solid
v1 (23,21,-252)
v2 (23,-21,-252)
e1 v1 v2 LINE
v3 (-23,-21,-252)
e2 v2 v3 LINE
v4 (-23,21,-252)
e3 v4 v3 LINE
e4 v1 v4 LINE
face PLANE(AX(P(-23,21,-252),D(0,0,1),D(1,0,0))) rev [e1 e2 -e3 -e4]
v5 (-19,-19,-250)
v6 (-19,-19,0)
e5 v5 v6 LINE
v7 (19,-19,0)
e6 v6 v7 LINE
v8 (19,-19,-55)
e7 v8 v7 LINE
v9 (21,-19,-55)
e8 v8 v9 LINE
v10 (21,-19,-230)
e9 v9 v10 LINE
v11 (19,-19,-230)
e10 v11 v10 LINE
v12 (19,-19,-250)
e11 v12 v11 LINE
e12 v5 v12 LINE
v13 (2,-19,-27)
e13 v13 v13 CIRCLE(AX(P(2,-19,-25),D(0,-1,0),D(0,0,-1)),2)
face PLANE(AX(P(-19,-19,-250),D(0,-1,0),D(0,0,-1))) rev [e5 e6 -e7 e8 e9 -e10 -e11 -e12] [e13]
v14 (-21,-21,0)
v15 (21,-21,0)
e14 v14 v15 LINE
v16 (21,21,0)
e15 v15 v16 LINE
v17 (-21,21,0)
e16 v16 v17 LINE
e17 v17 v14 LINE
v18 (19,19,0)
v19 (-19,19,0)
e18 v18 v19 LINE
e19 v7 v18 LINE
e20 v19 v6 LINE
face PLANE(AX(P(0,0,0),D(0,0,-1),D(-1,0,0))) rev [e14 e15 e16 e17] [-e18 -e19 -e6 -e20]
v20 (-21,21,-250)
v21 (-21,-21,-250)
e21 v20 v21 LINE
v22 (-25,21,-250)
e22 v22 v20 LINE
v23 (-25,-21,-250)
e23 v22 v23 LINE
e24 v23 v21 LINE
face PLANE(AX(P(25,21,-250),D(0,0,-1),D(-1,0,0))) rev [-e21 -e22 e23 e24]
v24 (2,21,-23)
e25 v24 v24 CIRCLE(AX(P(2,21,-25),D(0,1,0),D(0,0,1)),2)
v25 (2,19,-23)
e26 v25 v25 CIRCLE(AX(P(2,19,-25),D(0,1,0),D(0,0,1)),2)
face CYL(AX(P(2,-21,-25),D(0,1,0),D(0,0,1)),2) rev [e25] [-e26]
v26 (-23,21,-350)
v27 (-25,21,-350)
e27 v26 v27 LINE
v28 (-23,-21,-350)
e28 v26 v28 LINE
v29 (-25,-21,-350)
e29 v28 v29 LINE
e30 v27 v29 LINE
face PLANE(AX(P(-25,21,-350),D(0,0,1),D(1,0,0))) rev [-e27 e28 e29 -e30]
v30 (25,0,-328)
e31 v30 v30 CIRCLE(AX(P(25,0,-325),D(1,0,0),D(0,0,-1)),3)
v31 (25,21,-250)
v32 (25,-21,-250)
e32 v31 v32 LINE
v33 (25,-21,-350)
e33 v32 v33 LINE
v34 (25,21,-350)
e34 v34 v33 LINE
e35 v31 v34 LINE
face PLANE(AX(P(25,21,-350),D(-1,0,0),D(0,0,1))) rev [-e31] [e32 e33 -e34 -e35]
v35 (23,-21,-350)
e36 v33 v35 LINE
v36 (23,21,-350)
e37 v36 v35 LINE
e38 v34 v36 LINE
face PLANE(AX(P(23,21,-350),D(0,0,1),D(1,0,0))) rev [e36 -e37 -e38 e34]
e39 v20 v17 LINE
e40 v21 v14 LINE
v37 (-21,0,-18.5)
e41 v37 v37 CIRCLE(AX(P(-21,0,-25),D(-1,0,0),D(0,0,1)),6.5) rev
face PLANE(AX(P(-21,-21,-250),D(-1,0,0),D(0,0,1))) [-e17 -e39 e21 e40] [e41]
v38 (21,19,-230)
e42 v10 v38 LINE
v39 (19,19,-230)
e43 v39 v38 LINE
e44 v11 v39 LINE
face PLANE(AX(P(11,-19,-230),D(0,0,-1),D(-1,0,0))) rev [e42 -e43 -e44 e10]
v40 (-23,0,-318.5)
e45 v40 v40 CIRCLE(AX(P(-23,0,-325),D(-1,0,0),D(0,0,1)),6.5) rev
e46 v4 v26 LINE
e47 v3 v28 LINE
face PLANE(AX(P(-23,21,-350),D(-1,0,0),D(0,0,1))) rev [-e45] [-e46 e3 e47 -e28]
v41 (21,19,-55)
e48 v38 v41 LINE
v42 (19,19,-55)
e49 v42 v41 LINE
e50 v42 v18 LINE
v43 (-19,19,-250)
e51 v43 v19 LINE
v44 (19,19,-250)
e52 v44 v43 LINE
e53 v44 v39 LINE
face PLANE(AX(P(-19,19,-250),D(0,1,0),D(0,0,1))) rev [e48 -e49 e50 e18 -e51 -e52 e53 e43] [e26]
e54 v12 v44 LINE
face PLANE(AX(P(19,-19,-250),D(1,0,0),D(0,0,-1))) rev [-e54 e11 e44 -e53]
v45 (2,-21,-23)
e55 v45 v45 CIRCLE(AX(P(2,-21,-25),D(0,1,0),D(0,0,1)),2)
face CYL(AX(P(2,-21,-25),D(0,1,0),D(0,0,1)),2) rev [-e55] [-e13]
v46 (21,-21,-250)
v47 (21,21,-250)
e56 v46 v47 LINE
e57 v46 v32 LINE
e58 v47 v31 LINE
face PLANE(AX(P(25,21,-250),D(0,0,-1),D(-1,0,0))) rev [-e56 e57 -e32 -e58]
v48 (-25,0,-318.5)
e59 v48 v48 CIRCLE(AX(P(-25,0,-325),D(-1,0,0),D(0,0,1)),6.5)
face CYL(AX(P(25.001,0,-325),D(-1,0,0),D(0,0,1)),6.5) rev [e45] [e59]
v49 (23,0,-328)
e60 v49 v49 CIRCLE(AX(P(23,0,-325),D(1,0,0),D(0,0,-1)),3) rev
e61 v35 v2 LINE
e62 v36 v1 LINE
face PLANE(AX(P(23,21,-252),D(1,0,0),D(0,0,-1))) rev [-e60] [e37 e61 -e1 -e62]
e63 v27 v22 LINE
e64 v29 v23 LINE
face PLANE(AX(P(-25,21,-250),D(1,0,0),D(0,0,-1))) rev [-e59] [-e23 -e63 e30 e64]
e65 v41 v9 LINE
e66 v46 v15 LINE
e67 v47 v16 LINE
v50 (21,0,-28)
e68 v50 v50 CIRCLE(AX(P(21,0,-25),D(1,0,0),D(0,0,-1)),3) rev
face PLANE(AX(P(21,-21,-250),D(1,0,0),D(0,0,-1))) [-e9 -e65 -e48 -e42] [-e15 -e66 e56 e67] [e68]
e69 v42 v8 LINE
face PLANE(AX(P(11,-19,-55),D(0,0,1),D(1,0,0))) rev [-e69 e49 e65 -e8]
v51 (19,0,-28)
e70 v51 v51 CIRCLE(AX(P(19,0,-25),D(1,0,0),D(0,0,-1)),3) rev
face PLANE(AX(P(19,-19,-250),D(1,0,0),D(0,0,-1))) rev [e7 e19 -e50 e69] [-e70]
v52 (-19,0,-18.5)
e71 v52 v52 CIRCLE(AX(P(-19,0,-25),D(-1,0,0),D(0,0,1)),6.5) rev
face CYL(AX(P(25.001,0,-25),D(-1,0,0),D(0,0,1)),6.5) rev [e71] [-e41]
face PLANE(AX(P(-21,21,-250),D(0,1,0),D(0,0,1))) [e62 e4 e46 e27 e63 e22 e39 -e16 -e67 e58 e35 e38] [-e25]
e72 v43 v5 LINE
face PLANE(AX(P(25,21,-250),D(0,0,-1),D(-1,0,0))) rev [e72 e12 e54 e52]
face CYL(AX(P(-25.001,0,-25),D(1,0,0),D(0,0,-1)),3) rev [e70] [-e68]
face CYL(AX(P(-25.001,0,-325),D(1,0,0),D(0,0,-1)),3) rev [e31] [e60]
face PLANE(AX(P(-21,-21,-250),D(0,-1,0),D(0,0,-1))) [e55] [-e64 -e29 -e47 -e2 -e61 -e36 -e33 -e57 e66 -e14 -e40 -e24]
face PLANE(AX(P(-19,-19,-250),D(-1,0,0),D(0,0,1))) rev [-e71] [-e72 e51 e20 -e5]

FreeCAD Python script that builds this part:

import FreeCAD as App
import Part
import Sketcher

doc = App.newDocument("Part")
body = doc.addObject("PartDesign::Body", "Body")

# Sketch on XY plane
sketch1 = body.newObject("Sketcher::SketchObject", "Sketch")
sketch1.AttachmentSupport = (doc.getObject("XY_Plane"), [""])
sketch1.MapMode = "FlatFace"
sketch1.addGeometry(Part.LineSegment(App.Vector(-21, 21, 0), App.Vector(-21, -21, 0)), False)
sketch1.addGeometry(Part.LineSegment(App.Vector(-21, -21, 0), App.Vector(21, -21, 0)), False)
sketch1.addGeometry(Part.LineSegment(App.Vector(21, -21, 0), App.Vector(21, 21, 0)), False)
sketch1.addGeometry(Part.LineSegment(App.Vector(21, 21, 0), App.Vector(-21, 21, 0)), False)
sketch1.addGeometry(Part.LineSegment(App.Vector(19, -19, 0), App.Vector(-19, -19, 0)), False)
sketch1.addGeometry(Part.LineSegment(App.Vector(-19, -19, 0), App.Vector(-19, 19, 0)), False)
sketch1.addGeometry(Part.LineSegment(App.Vector(-19, 19, 0), App.Vector(19, 19, 0)), False)
sketch1.addGeometry(Part.LineSegment(App.Vector(19, 19, 0), App.Vector(19, -19, 0)), False)
sketch1.addConstraint(Sketcher.Constraint("Coincident", 0, 2, 1, 1))
sketch1.addConstraint(Sketcher.Constraint("Coincident", 1, 2, 2, 1))
sketch1.addConstraint(Sketcher.Constraint("Coincident", 2, 2, 3, 1))
sketch1.addConstraint(Sketcher.Constraint("Coincident", 3, 2, 0, 1))
sketch1.addConstraint(Sketcher.Constraint("Coincident", 4, 2, 5, 1))
sketch1.addConstraint(Sketcher.Constraint("Coincident", 5, 2, 6, 1))
sketch1.addConstraint(Sketcher.Constraint("Coincident", 6, 2, 7, 1))
sketch1.addConstraint(Sketcher.Constraint("Coincident", 7, 2, 4, 1))
sketch1.addConstraint(Sketcher.Constraint("Vertical", 0))
sketch1.addConstraint(Sketcher.Constraint("Horizontal", 1))
sketch1.addConstraint(Sketcher.Constraint("Vertical", 2))
sketch1.addConstraint(Sketcher.Constraint("Horizontal", 3))
sketch1.addConstraint(Sketcher.Constraint("Horizontal", 4))
sketch1.addConstraint(Sketcher.Constraint("Vertical", 5))
sketch1.addConstraint(Sketcher.Constraint("Horizontal", 6))
sketch1.addConstraint(Sketcher.Constraint("Vertical", 7))
sketch1.addConstraint(Sketcher.Constraint("Symmetric", 0, 2, 2, 2, -1, 1))
sketch1.addConstraint(Sketcher.Constraint("Symmetric", 4, 2, 6, 2, -1, 1))
sketch1.addConstraint(Sketcher.Constraint("Equal", 3, 0))
sketch1.addConstraint(Sketcher.Constraint("Equal", 6, 5))
sketch1.addConstraint(Sketcher.Constraint("DistanceX", 1, 1, 1, 2, 42.0))
sketch1.addConstraint(Sketcher.Constraint("DistanceX", 4, 2, 4, 1, 38.0))
pad1 = body.newObject("PartDesign::Pad", "Pad")
pad1.Profile = sketch1
pad1.Length = 250
pad1.Reversed = True

# Sketch on XZ plane
sketch2 = body.newObject("Sketcher::SketchObject", "Sketch001")
sketch2.AttachmentSupport = (doc.getObject("XZ_Plane"), [""])
sketch2.MapMode = "FlatFace"
sketch2.addGeometry(Part.LineSegment(App.Vector(-25, -350, 0), App.Vector(-25, -250, 0)), False)
sketch2.addGeometry(Part.LineSegment(App.Vector(-25, -250, 0), App.Vector(25, -250, 0)), False)
sketch2.addGeometry(Part.LineSegment(App.Vector(25, -250, 0), App.Vector(25, -350, 0)), False)
sketch2.addGeometry(Part.LineSegment(App.Vector(25, -350, 0), App.Vector(23, -350, 0)), False)
sketch2.addGeometry(Part.LineSegment(App.Vector(23, -350, 0), App.Vector(23, -252, 0)), False)
sketch2.addGeometry(Part.LineSegment(App.Vector(23, -252, 0), App.Vector(-23, -252, 0)), False)
sketch2.addGeometry(Part.LineSegment(App.Vector(-23, -252, 0), App.Vector(-23, -350, 0)), False)
sketch2.addGeometry(Part.LineSegment(App.Vector(-23, -350, 0), App.Vector(-25, -350, 0)), False)
sketch2.addConstraint(Sketcher.Constraint("Coincident", 0, 2, 1, 1))
sketch2.addConstraint(Sketcher.Constraint("Coincident", 1, 2, 2, 1))
sketch2.addConstraint(Sketcher.Constraint("Coincident", 2, 2, 3, 1))
sketch2.addConstraint(Sketcher.Constraint("Coincident", 3, 2, 4, 1))
sketch2.addConstraint(Sketcher.Constraint("Coincident", 4, 2, 5, 1))
sketch2.addConstraint(Sketcher.Constraint("Coincident", 5, 2, 6, 1))
sketch2.addConstraint(Sketcher.Constraint("Coincident", 6, 2, 7, 1))
sketch2.addConstraint(Sketcher.Constraint("Coincident", 7, 2, 0, 1))
sketch2.addConstraint(Sketcher.Constraint("Vertical", 0))
sketch2.addConstraint(Sketcher.Constraint("Horizontal", 1))
sketch2.addConstraint(Sketcher.Constraint("Vertical", 2))
sketch2.addConstraint(Sketcher.Constraint("Horizontal", 3))
sketch2.addConstraint(Sketcher.Constraint("Vertical", 4))
sketch2.addConstraint(Sketcher.Constraint("Horizontal", 5))
sketch2.addConstraint(Sketcher.Constraint("Vertical", 6))
sketch2.addConstraint(Sketcher.Constraint("Horizontal", 7))
sketch2.addConstraint(Sketcher.Constraint("Symmetric", 3, 2, 6, 2, -2))
sketch2.addConstraint(Sketcher.Constraint("Equal", 3, 7))
sketch2.addConstraint(Sketcher.Constraint("DistanceX", 1, 1, 1, 2, 50.0))
sketch2.addConstraint(Sketcher.Constraint("DistanceX", 3, 2, 3, 1, 2.0))
sketch2.addConstraint(Sketcher.Constraint("DistanceY", 0, 1, 0, 2, 100.0))
sketch2.addConstraint(Sketcher.Constraint("DistanceY", 4, 1, 4, 2, 98.0))
sketch2.addConstraint(Sketcher.Constraint("DistanceY", 0, 2, -1, 1, 250.0))
pad2 = body.newObject("PartDesign::Pad", "Pad001")
pad2.Profile = sketch2
pad2.Length = 42
pad2.Midplane = True

# Sketch on YZ plane
sketch3 = body.newObject("Sketcher::SketchObject", "Sketch002")
sketch3.AttachmentSupport = (doc.getObject("YZ_Plane"), [""])
sketch3.MapMode = "FlatFace"
sketch3.AttachmentOffset = App.Placement(App.Vector(0, 0, -25), App.Rotation())
sketch3.addGeometry(Part.Circle(App.Vector(0, -25, 0), App.Vector(0, 0, 1), 6), False)
sketch3.addConstraint(Sketcher.Constraint("PointOnObject", 0, 3, -2))
sketch3.addConstraint(Sketcher.Constraint("Diameter", 0, 13.0))
sketch3.addConstraint(Sketcher.Constraint("DistanceY", 0, 3, -1, 1, 25.0))
pocket1 = body.newObject("PartDesign::Pocket", "Pocket")
pocket1.Profile = sketch3
pocket1.Length = 6
pocket1.Reversed = True

# Sketch on YZ plane
sketch4 = body.newObject("Sketcher::SketchObject", "Sketch003")
sketch4.AttachmentSupport = (doc.getObject("YZ_Plane"), [""])
sketch4.MapMode = "FlatFace"
sketch4.AttachmentOffset = App.Placement(App.Vector(0, 0, -25), App.Rotation())
sketch4.addGeometry(Part.Circle(App.Vector(0, -325, 0), App.Vector(0, 0, 1), 6), False)
sketch4.addConstraint(Sketcher.Constraint("PointOnObject", 0, 3, -2))
sketch4.addConstraint(Sketcher.Constraint("Diameter", 0, 13.0))
sketch4.addConstraint(Sketcher.Constraint("DistanceY", 0, 3, -1, 1, 325.0))
pocket2 = body.newObject("PartDesign::Pocket", "Pocket001")
pocket2.Profile = sketch4
pocket2.Type = "UpToFirst"
pocket2.Reversed = True

# Sketch on YZ plane
sketch5 = body.newObject("Sketcher::SketchObject", "Sketch004")
sketch5.AttachmentSupport = (doc.getObject("YZ_Plane"), [""])
sketch5.MapMode = "FlatFace"
sketch5.AttachmentOffset = App.Placement(App.Vector(0, 0, 25), App.Rotation())
sketch5.addGeometry(Part.Circle(App.Vector(0, -325, 0), App.Vector(0, 0, 1), 3), False)
sketch5.addConstraint(Sketcher.Constraint("PointOnObject", 0, 3, -2))
sketch5.addConstraint(Sketcher.Constraint("Diameter", 0, 6.0))
sketch5.addConstraint(Sketcher.Constraint("DistanceY", 0, 3, -1, 1, 325.0))
pocket3 = body.newObject("PartDesign::Pocket", "Pocket002")
pocket3.Profile = sketch5
pocket3.Type = "UpToFirst"

# Sketch on YZ plane
sketch6 = body.newObject("Sketcher::SketchObject", "Sketch005")
sketch6.AttachmentSupport = (doc.getObject("YZ_Plane"), [""])
sketch6.MapMode = "FlatFace"
sketch6.AttachmentOffset = App.Placement(App.Vector(0, 0, 25), App.Rotation())
sketch6.addGeometry(Part.Circle(App.Vector(0, -25, 0), App.Vector(0, 0, 1), 3), False)
sketch6.addConstraint(Sketcher.Constraint("PointOnObject", 0, 3, -2))
sketch6.addConstraint(Sketcher.Constraint("Diameter", 0, 6.0))
sketch6.addConstraint(Sketcher.Constraint("DistanceY", 0, 3, -1, 1, 25.0))
pocket4 = body.newObject("PartDesign::Pocket", "Pocket003")
pocket4.Profile = sketch6
pocket4.Length = 6

# Sketch on YZ plane
sketch7 = body.newObject("Sketcher::SketchObject", "Sketch006")
sketch7.AttachmentSupport = (doc.getObject("YZ_Plane"), [""])
sketch7.MapMode = "FlatFace"
sketch7.AttachmentOffset = App.Placement(App.Vector(0, 0, 21), App.Rotation())
sketch7.addGeometry(Part.LineSegment(App.Vector(19, -55, 0), App.Vector(-19, -55, 0)), False)
sketch7.addGeometry(Part.LineSegment(App.Vector(-19, -55, 0), App.Vector(-19, -230, 0)), False)
sketch7.addGeometry(Part.LineSegment(App.Vector(-19, -230, 0), App.Vector(19, -230, 0)), False)
sketch7.addGeometry(Part.LineSegment(App.Vector(19, -230, 0), App.Vector(19, -55, 0)), False)
sketch7.addConstraint(Sketcher.Constraint("Coincident", 0, 2, 1, 1))
sketch7.addConstraint(Sketcher.Constraint("Coincident", 1, 2, 2, 1))
sketch7.addConstraint(Sketcher.Constraint("Coincident", 2, 2, 3, 1))
sketch7.addConstraint(Sketcher.Constraint("Coincident", 3, 2, 0, 1))
sketch7.addConstraint(Sketcher.Constraint("Horizontal", 0))
sketch7.addConstraint(Sketcher.Constraint("Vertical", 1))
sketch7.addConstraint(Sketcher.Constraint("Horizontal", 2))
sketch7.addConstraint(Sketcher.Constraint("Vertical", 3))
sketch7.addConstraint(Sketcher.Constraint("DistanceX", 0, 2, 0, 1, 38.0))
sketch7.addConstraint(Sketcher.Constraint("DistanceY", 1, 2, 1, 1, 175.0))
sketch7.addConstraint(Sketcher.Constraint("DistanceX", 0, 2, -1, 1, 19.0))
sketch7.addConstraint(Sketcher.Constraint("DistanceY", 0, 2, -1, 1, 55.0))
pocket5 = body.newObject("PartDesign::Pocket", "Pocket004")
pocket5.Profile = sketch7
pocket5.Length = 10

# Sketch on XZ plane
sketch8 = body.newObject("Sketcher::SketchObject", "Sketch007")
sketch8.AttachmentSupport = (doc.getObject("XZ_Plane"), [""])
sketch8.MapMode = "FlatFace"
sketch8.AttachmentOffset = App.Placement(App.Vector(0, 0, -21), App.Rotation())
sketch8.addGeometry(Part.Circle(App.Vector(2, -25, 0), App.Vector(0, 0, 1), 2), False)
sketch8.addConstraint(Sketcher.Constraint("Diameter", 0, 4.0))
sketch8.addConstraint(Sketcher.Constraint("DistanceX", -1, 1, 0, 3, 2.0))
sketch8.addConstraint(Sketcher.Constraint("DistanceY", 0, 3, -1, 1, 25.0))
pocket6 = body.newObject("PartDesign::Pocket", "Pocket005")
pocket6.Profile = sketch8
pocket6.Type = "ThroughAll"
pocket6.Reversed = True

doc.recompute()
